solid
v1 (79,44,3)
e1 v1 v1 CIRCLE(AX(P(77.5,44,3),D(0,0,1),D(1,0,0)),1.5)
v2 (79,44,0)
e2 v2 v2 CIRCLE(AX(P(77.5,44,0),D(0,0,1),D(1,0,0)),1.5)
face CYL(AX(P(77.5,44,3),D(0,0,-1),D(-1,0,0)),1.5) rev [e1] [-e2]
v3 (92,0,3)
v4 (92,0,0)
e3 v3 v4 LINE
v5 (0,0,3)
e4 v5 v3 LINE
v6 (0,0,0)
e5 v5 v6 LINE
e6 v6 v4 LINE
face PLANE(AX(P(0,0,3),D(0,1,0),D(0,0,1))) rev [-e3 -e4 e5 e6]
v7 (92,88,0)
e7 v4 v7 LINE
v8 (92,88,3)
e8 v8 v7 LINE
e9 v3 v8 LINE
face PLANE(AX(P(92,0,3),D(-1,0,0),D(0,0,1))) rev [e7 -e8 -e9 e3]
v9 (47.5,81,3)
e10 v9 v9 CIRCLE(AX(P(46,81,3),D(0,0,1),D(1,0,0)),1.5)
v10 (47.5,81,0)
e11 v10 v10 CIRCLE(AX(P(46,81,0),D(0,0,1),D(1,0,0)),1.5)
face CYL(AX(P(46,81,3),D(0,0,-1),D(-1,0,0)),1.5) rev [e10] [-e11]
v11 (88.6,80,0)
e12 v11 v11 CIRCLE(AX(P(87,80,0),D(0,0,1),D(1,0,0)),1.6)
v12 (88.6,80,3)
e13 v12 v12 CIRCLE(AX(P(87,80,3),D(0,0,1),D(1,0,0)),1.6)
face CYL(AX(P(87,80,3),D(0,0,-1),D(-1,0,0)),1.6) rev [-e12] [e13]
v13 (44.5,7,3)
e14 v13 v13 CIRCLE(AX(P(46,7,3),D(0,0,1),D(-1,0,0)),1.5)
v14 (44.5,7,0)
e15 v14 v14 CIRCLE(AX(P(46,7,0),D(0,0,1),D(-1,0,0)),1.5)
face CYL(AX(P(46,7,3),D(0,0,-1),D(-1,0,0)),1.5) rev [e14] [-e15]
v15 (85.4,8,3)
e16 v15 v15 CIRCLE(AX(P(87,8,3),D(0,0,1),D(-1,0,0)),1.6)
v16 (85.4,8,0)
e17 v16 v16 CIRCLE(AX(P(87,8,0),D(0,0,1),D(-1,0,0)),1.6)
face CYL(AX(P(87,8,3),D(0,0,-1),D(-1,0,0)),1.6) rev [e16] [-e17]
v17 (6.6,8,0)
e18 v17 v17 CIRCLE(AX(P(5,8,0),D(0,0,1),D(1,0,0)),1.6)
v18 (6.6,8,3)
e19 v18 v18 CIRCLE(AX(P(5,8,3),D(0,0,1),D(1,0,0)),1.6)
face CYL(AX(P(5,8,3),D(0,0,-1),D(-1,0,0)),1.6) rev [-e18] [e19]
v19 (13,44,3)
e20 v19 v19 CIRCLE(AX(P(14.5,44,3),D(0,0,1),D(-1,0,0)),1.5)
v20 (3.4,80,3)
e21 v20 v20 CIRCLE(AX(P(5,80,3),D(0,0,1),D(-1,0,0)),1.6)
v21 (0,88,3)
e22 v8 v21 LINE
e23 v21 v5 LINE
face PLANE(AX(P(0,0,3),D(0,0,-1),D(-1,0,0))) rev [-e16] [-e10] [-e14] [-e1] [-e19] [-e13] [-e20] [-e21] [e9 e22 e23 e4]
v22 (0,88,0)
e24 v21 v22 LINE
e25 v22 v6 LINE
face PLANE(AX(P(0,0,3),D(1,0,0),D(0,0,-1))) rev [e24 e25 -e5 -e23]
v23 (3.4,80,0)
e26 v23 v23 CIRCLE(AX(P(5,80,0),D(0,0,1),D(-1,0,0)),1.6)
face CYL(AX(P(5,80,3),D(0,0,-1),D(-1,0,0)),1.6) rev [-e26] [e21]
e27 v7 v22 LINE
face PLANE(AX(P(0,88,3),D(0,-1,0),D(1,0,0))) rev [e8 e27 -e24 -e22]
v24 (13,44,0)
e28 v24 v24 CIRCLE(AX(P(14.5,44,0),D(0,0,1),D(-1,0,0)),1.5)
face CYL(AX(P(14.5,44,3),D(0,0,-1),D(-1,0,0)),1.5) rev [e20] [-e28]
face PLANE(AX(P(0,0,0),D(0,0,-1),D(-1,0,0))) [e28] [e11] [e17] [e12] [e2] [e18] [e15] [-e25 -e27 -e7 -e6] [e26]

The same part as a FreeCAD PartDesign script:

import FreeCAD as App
import Part
import Sketcher

V = App.Vector
Q = App.Units.Quantity


def add_polygon(sketch, points):
    """Adds a closed chain of lines whose ends are joined by coincident constraints."""
    first, n = sketch.GeometryCount, len(points)
    for a, b in zip(points, points[1:] + points[:1]):
        sketch.addGeometry(Part.LineSegment(App.Vector(*a, 0), App.Vector(*b, 0)), False)
    for i in range(n):
        sketch.addConstraint(Sketcher.Constraint("Coincident", first + i, 2, first + (i + 1) % n, 1))

doc = App.newDocument("Part")
body = doc.addObject("PartDesign::Body", "Body")

# Sketch on XY plane
sketch1 = doc.addObject("Sketcher::SketchObject", "Sketch")
body.addObject(sketch1)
sketch1.AttachmentSupport = (doc.XY_Plane, [""])
sketch1.MapMode = "FlatFace"
add_polygon(sketch1, [(0, 88), (0, 0), (92, 0), (92, 88)])  # lines 0-3
sketch1.addGeometry(Part.Circle(V(5, 8, 0), V(0, 0, 1), 1.6), False)  # 4
sketch1.addGeometry(Part.Circle(V(46, 7, 0), V(0, 0, 1), 1.5), False)  # 5
sketch1.addGeometry(Part.Circle(V(87, 8, 0), V(0, 0, 1), 1.6), False)  # 6
sketch1.addGeometry(Part.Circle(V(14.5, 44, 0), V(0, 0, 1), 1.5), False)  # 7
sketch1.addGeometry(Part.Circle(V(5, 80, 0), V(0, 0, 1), 1.6), False)  # 8
sketch1.addGeometry(Part.Circle(V(77.5, 44, 0), V(0, 0, 1), 1.5), False)  # 9
sketch1.addGeometry(Part.Circle(V(46, 81, 0), V(0, 0, 1), 1.5), False)  # 10
sketch1.addGeometry(Part.Circle(V(87, 80, 0), V(0, 0, 1), 1.6), False)  # 11
sketch1.addConstraint(Sketcher.Constraint("Vertical", 0))
sketch1.addConstraint(Sketcher.Constraint("Horizontal", 1))
sketch1.addConstraint(Sketcher.Constraint("Vertical", 2))
sketch1.addConstraint(Sketcher.Constraint("Horizontal", 3))
sketch1.addConstraint(Sketcher.Constraint("Coincident", 0, 2, -1, 1))
sketch1.addConstraint(Sketcher.Constraint("Equal", 4, 6))
sketch1.addConstraint(Sketcher.Constraint("Equal", 5, 7))
sketch1.addConstraint(Sketcher.Constraint("Equal", 6, 8))
sketch1.addConstraint(Sketcher.Constraint("Equal", 7, 9))
sketch1.addConstraint(Sketcher.Constraint("Equal", 9, 10))
sketch1.addConstraint(Sketcher.Constraint("Equal", 8, 11))
sketch1.addConstraint(Sketcher.Constraint("Horizontal", 4, 3, 6, 3))
sketch1.addConstraint(Sketcher.Constraint("Horizontal", 7, 3, 9, 3))
sketch1.addConstraint(Sketcher.Constraint("Horizontal", 8, 3, 11, 3))
sketch1.addConstraint(Sketcher.Constraint("Vertical", 4, 3, 8, 3))
sketch1.addConstraint(Sketcher.Constraint("Vertical", 5, 3, 10, 3))
sketch1.addConstraint(Sketcher.Constraint("Vertical", 6, 3, 11, 3))
sketch1.addConstraint(Sketcher.Constraint("Diameter", 5, Q("3 mm")))
sketch1.addConstraint(Sketcher.Constraint("Diameter", 4, Q("3.2 mm")))
sketch1.addConstraint(Sketcher.Constraint("DistanceX", 1, 1, 1, 2, Q("92 mm")))
sketch1.addConstraint(Sketcher.Constraint("DistanceY", 0, 2, 0, 1, Q("88 mm")))
sketch1.addConstraint(Sketcher.Constraint("DistanceX", -1, 1, 4, 3, Q("5 mm")))
sketch1.addConstraint(Sketcher.Constraint("DistanceY", -1, 1, 4, 3, Q("8 mm")))
sketch1.addConstraint(Sketcher.Constraint("DistanceX", -1, 1, 5, 3, Q("46 mm")))
sketch1.addConstraint(Sketcher.Constraint("DistanceY", -1, 1, 5, 3, Q("7 mm")))
sketch1.addConstraint(Sketcher.Constraint("DistanceX", -1, 1, 6, 3, Q("87 mm")))
sketch1.addConstraint(Sketcher.Constraint("DistanceY", -1, 1, 7, 3, Q("44 mm")))
sketch1.addConstraint(Sketcher.Constraint("DistanceY", -1, 1, 8, 3, Q("80 mm")))
sketch1.addConstraint(Sketcher.Constraint("DistanceY", -1, 1, 10, 3, Q("81 mm")))
sketch1.addConstraint(Sketcher.Constraint("DistanceX", 7, 3, 9, 3, Q("63 mm")))
sketch1.addConstraint(Sketcher.Constraint("DistanceX", -1, 1, 7, 3, Q("14.5 mm")))
pad1 = doc.addObject("PartDesign::Pad", "Pad")
body.addObject(pad1)
pad1.Profile = sketch1
pad1.Length = 3

doc.recompute()
